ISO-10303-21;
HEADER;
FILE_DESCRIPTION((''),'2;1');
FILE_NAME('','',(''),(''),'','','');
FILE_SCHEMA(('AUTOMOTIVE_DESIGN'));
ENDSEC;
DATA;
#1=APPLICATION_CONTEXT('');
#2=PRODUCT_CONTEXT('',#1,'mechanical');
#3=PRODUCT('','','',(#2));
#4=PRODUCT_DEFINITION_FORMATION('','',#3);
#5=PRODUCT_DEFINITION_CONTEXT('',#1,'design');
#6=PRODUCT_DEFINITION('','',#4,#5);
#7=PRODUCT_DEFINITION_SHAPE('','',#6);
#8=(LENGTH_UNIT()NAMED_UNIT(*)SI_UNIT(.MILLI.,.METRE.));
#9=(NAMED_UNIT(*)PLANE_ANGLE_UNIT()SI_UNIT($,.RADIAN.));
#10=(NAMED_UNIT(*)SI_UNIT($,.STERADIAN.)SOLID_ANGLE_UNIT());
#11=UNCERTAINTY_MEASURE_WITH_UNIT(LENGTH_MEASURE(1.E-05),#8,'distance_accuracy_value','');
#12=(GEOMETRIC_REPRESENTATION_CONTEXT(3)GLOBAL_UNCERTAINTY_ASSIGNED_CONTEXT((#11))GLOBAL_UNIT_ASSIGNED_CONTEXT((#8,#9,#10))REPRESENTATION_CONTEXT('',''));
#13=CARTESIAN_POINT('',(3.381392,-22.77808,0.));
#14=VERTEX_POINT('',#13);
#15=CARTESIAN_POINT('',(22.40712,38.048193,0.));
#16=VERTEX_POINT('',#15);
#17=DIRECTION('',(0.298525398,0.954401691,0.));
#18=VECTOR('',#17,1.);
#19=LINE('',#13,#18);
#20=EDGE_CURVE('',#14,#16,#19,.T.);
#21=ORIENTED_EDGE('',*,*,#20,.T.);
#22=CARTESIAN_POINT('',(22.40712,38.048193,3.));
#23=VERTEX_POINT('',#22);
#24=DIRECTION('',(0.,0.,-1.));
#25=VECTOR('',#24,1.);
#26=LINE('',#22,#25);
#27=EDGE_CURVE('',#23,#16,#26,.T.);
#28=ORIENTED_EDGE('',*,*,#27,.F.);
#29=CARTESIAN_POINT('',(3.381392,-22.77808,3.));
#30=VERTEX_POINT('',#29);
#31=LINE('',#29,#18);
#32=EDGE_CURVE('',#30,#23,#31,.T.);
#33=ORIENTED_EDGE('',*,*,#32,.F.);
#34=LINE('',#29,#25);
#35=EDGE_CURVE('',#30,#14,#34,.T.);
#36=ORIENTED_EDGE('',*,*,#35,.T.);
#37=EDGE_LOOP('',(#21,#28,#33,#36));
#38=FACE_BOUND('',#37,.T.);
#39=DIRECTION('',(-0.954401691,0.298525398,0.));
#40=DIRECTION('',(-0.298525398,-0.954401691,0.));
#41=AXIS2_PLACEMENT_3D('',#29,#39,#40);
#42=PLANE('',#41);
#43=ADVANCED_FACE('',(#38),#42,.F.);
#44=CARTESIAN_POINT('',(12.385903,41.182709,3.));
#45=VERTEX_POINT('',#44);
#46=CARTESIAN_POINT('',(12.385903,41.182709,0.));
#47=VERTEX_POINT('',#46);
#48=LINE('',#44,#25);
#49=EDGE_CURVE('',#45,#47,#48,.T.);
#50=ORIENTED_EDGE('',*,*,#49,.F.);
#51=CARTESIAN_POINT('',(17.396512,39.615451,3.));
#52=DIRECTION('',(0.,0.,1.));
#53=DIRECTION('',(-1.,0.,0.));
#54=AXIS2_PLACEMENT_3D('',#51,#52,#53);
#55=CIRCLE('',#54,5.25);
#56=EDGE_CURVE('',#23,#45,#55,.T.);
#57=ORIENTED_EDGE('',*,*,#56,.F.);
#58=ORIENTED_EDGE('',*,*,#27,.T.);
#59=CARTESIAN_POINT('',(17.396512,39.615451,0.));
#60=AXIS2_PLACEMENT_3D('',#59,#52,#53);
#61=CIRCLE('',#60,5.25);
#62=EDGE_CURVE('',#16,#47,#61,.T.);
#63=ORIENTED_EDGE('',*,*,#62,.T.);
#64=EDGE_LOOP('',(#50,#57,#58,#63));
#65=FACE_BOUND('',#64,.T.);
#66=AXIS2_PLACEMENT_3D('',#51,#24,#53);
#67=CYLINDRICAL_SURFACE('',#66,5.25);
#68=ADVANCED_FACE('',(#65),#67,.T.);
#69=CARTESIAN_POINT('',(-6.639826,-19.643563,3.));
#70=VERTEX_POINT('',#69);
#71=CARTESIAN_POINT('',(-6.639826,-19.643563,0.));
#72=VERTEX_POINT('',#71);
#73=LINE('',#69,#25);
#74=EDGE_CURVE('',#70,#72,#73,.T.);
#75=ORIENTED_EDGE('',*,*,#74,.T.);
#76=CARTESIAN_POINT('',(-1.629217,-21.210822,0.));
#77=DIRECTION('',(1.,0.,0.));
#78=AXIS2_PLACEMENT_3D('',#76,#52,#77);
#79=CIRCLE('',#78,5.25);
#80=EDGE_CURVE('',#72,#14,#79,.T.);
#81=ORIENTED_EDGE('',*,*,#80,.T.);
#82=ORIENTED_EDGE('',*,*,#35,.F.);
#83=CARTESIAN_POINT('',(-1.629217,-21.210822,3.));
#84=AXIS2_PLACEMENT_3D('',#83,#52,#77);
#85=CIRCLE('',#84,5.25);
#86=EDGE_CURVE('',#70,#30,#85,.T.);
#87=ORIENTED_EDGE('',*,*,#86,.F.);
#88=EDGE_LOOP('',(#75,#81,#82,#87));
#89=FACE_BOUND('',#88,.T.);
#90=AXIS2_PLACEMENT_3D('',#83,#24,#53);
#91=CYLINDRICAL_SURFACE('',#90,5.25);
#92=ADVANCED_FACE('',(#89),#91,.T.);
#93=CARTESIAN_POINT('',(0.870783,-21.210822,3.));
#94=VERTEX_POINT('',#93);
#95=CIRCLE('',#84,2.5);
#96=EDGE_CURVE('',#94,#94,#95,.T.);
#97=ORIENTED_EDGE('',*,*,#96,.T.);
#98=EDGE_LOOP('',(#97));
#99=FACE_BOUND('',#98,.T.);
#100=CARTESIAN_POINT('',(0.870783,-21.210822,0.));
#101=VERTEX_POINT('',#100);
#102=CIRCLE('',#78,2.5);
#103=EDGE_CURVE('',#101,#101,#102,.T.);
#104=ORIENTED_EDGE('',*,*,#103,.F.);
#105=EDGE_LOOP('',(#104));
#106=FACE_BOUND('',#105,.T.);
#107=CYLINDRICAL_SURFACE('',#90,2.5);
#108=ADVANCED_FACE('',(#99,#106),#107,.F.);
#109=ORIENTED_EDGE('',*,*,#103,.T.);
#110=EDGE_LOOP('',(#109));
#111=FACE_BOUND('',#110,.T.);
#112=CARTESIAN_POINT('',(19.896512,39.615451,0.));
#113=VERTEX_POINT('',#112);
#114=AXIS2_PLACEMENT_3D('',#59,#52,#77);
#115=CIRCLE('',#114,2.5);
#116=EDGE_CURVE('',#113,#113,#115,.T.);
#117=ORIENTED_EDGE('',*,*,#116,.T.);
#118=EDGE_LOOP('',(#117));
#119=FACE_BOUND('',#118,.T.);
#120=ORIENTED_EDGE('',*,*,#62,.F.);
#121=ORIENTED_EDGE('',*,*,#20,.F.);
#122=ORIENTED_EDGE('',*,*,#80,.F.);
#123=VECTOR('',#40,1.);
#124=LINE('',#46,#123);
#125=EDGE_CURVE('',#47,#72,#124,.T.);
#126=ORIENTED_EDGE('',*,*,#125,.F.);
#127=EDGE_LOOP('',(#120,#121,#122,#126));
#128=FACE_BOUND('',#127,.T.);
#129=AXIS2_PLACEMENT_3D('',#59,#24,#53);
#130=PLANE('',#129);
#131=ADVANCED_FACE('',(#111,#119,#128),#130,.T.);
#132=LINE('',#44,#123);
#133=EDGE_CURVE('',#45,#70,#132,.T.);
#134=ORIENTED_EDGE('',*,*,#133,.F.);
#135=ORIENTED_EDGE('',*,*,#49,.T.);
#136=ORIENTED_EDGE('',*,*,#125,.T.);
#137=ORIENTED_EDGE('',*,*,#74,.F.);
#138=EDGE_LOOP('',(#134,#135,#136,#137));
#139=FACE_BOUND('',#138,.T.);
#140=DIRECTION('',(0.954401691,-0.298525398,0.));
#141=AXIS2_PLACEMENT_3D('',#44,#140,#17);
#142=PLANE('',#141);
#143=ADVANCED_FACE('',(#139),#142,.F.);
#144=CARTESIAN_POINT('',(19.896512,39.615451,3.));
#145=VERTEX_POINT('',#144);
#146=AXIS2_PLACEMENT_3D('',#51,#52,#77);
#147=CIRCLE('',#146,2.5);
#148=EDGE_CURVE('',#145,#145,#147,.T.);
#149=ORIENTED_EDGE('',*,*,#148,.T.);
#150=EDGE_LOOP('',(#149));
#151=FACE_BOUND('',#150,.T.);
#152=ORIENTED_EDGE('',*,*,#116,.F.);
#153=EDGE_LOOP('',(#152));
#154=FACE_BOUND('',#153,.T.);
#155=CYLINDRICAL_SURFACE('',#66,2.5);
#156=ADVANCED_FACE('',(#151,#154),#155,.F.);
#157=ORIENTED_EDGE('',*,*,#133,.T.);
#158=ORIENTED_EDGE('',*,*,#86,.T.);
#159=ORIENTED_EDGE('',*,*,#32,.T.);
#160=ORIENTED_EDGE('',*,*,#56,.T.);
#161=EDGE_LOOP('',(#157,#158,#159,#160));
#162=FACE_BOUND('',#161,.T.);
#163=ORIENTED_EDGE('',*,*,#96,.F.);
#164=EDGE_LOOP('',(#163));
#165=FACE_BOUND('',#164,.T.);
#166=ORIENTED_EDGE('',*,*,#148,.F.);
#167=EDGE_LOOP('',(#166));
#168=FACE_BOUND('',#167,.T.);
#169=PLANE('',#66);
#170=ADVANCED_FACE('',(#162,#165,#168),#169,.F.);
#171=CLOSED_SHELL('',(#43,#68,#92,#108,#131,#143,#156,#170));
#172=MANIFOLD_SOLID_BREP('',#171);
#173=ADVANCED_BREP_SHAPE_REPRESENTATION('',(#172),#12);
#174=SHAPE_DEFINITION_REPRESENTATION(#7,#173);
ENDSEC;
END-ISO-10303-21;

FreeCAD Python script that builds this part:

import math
import FreeCAD as App
import Part
import Sketcher
Q = App.Units.Quantity

doc = App.newDocument("Part")
body = doc.addObject("PartDesign::Body", "Body")

sketch1 = doc.addObject("Sketcher::SketchObject", "Sketch")
body.addObject(sketch1)
sketch1.AttachmentSupport = (doc.XY_Plane, [""])
sketch1.MapMode = "FlatFace"
sketch1.addGeometry([
    Part.LineSegment(App.Vector(12.4, 41.2, 0), App.Vector(-6.6, -19.6, 0)),
    Part.ArcOfCircle(Part.Circle(App.Vector(-1.6, -21.2, 0), App.Vector(0, 0, 1), 5.2), math.radians(163), math.radians(343)),
    Part.LineSegment(App.Vector(3.4, -22.8, 0), App.Vector(22.4, 38, 0)),
    Part.ArcOfCircle(Part.Circle(App.Vector(17.4, 39.6, 0), App.Vector(0, 0, 1), 5.2), math.radians(-17), math.radians(163)),
    Part.Circle(App.Vector(-1.6, -21.2, 0), App.Vector(0, 0, 1), 2.5),
    Part.Circle(App.Vector(17.4, 39.6, 0), App.Vector(0, 0, 1), 2.5),
], False)
sketch1.addConstraint([
    Sketcher.Constraint("Tangent", 0, 2, 1, 1),
    Sketcher.Constraint("Tangent", 1, 2, 2, 1),
    Sketcher.Constraint("Tangent", 2, 2, 3, 1),
    Sketcher.Constraint("Tangent", 3, 2, 0, 1),
    Sketcher.Constraint("Coincident", 4, 3, 1, 3),
    Sketcher.Constraint("Coincident", 5, 3, 3, 3),
    Sketcher.Constraint("Equal", 1, 3),
    Sketcher.Constraint("Equal", 4, 5),
    Sketcher.Constraint("Diameter", 4, Q("5 mm")),
    Sketcher.Constraint("Radius", 1, Q("5.25 mm")),
    Sketcher.Constraint("Distance", 0, Q("63.732361 mm")),
    Sketcher.Constraint("DistanceY", 1, 3, -1, 1, Q("21.210822 mm")),
    Sketcher.Constraint("DistanceX", -1, 1, 3, 3, Q("17.396512 mm")),
    Sketcher.Constraint("DistanceY", -1, 1, 3, 3, Q("39.615451 mm")),
])
pad1 = doc.addObject("PartDesign::Pad", "Pad")
body.addObject(pad1)
pad1.Profile = sketch1
pad1.Length = 3

doc.recompute()
